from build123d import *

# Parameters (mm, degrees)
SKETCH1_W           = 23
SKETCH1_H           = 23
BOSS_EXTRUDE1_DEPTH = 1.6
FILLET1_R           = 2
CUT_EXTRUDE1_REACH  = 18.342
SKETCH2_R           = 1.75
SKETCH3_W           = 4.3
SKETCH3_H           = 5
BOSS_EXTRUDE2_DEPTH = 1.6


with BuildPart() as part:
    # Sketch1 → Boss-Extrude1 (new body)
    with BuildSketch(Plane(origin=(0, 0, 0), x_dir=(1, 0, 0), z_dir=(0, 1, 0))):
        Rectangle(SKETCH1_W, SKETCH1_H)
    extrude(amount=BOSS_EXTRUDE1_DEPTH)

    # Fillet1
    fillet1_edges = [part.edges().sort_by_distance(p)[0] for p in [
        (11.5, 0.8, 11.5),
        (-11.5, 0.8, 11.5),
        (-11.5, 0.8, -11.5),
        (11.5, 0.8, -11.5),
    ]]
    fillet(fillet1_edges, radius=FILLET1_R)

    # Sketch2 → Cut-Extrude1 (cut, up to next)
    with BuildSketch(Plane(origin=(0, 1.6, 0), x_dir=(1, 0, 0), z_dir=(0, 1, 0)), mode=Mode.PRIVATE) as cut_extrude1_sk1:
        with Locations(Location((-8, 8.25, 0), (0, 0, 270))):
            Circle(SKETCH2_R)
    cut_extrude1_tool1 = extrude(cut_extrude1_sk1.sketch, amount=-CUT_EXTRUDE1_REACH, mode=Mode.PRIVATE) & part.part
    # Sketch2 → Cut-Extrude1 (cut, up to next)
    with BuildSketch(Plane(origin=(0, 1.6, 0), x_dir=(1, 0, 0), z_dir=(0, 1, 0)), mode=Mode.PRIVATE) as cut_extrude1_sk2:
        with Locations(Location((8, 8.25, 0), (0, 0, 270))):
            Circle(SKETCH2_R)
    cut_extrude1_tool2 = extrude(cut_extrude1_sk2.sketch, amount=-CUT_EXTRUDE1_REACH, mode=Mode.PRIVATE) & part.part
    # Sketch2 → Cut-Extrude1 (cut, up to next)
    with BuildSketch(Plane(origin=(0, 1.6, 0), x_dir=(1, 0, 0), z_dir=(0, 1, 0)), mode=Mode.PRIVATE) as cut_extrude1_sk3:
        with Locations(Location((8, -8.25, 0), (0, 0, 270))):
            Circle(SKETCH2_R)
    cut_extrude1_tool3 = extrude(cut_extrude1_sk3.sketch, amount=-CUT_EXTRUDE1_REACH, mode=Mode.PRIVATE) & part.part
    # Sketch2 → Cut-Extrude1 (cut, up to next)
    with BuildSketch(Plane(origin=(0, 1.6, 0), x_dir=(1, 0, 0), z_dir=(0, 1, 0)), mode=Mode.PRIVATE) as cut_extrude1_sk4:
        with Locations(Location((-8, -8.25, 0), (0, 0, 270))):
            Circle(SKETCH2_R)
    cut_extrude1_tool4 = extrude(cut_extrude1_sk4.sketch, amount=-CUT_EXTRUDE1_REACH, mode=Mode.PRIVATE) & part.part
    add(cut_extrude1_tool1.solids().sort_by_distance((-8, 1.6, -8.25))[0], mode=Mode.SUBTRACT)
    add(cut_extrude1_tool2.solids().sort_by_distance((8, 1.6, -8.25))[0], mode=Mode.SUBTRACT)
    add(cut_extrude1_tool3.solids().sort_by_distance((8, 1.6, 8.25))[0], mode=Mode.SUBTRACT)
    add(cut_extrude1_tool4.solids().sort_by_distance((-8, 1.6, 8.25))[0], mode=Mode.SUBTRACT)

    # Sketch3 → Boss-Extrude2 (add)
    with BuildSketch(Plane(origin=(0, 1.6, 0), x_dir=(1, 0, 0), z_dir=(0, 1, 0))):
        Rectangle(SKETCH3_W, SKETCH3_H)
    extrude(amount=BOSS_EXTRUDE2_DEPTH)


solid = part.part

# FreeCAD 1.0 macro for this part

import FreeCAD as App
import Part
import Sketcher
from FreeCAD import Vector


def edges_at(feature, points):
    """Names of the edges that pass closest to the given points."""
    edges = feature.Shape.Edges
    near = lambda p: min(range(len(edges)), key=lambda i: edges[i].distToShape(Part.Vertex(*p))[0])
    return sorted({f"Edge{near(p) + 1}" for p in points})


def add_polygon(sketch, points):
    """Adds a closed chain of lines whose ends are joined by coincident constraints."""
    first, n = sketch.GeometryCount, len(points)
    for a, b in zip(points, points[1:] + points[:1]):
        sketch.addGeometry(Part.LineSegment(App.Vector(*a, 0), App.Vector(*b, 0)), False)
    for i in range(n):
        sketch.addConstraint(Sketcher.Constraint("Coincident", first + i, 2, first + (i + 1) % n, 1))

doc = App.newDocument("Part")
body = doc.addObject("PartDesign::Body", "Body")

# Sketch on XZ plane
sketch1 = body.newObject("Sketcher::SketchObject", "Sketch")
sketch1.AttachmentSupport = (doc.getObject("XZ_Plane"), [""])
sketch1.MapMode = "FlatFace"
add_polygon(sketch1, [(-12, -12), (-12, 12), (12, 12), (12, -12)])  # lines 0-3
sketch1.addConstraint(Sketcher.Constraint("Vertical", 0))
sketch1.addConstraint(Sketcher.Constraint("Horizontal", 1))
sketch1.addConstraint(Sketcher.Constraint("Vertical", 2))
sketch1.addConstraint(Sketcher.Constraint("Horizontal", 3))
sketch1.addConstraint(Sketcher.Constraint("Symmetric", 0, 2, 2, 2, -1, 1))
sketch1.addConstraint(Sketcher.Constraint("Equal", 3, 0))
sketch1.addConstraint(Sketcher.Constraint("DistanceX", 1, 1, 1, 2, 23.0))
pad1 = body.newObject("PartDesign::Pad", "Pad")
pad1.Profile = sketch1
pad1.Length = 1.6
pad1.Reversed = True
doc.recompute()

fillet = body.newObject("PartDesign::Fillet", "Fillet")
fillet.Base = (pad1, edges_at(pad1, [
    (11.5, 0.8, 11.5),
    (-11.5, 0.8, 11.5),
    (-11.5, 0.8, -11.5),
    (11.5, 0.8, -11.5),
]))
fillet.Radius = 2

# Sketch on XZ plane
sketch2 = body.newObject("Sketcher::SketchObject", "Sketch001")
sketch2.AttachmentSupport = (doc.getObject("XZ_Plane"), [""])
sketch2.MapMode = "FlatFace"
sketch2.AttachmentOffset = App.Placement(Vector(0, 0, -1.6), App.Rotation())
sketch2.addGeometry(Part.Circle(Vector(-8, -8.2, 0), Vector(0, 0, 1), 1.8), False)
sketch2.addConstraint(Sketcher.Constraint("Diameter", 0, 3.5))
sketch2.addConstraint(Sketcher.Constraint("DistanceX", 0, 3, -1, 1, 8.0))
sketch2.addConstraint(Sketcher.Constraint("DistanceY", 0, 3, -1, 1, 8.25))
pocket1 = body.newObject("PartDesign::Pocket", "Pocket")
pocket1.Profile = sketch2
pocket1.Type = "UpToFirst"
pocket1.Reversed = True

# Sketch on XZ plane
sketch3 = body.newObject("Sketcher::SketchObject", "Sketch002")
sketch3.AttachmentSupport = (doc.getObject("XZ_Plane"), [""])
sketch3.MapMode = "FlatFace"
sketch3.AttachmentOffset = App.Placement(Vector(0, 0, -1.6), App.Rotation())
sketch3.addGeometry(Part.Circle(Vector(8, -8.2, 0), Vector(0, 0, 1), 1.8), False)
sketch3.addConstraint(Sketcher.Constraint("Diameter", 0, 3.5))
sketch3.addConstraint(Sketcher.Constraint("DistanceX", -1, 1, 0, 3, 8.0))
sketch3.addConstraint(Sketcher.Constraint("DistanceY", 0, 3, -1, 1, 8.25))
pocket2 = body.newObject("PartDesign::Pocket", "Pocket001")
pocket2.Profile = sketch3
pocket2.Type = "UpToFirst"
pocket2.Reversed = True

# Sketch on XZ plane
sketch4 = body.newObject("Sketcher::SketchObject", "Sketch003")
sketch4.AttachmentSupport = (doc.getObject("XZ_Plane"), [""])
sketch4.MapMode = "FlatFace"
sketch4.AttachmentOffset = App.Placement(Vector(0, 0, -1.6), App.Rotation())
sketch4.addGeometry(Part.Circle(Vector(8, 8.2, 0), Vector(0, 0, 1), 1.8), False)
sketch4.addConstraint(Sketcher.Constraint("Diameter", 0, 3.5))
sketch4.addConstraint(Sketcher.Constraint("DistanceX", -1, 1, 0, 3, 8.0))
sketch4.addConstraint(Sketcher.Constraint("DistanceY", -1, 1, 0, 3, 8.25))
pocket3 = body.newObject("PartDesign::Pocket", "Pocket002")
pocket3.Profile = sketch4
pocket3.Type = "UpToFirst"
pocket3.Reversed = True

# Sketch on XZ plane
sketch5 = body.newObject("Sketcher::SketchObject", "Sketch004")
sketch5.AttachmentSupport = (doc.getObject("XZ_Plane"), [""])
sketch5.MapMode = "FlatFace"
sketch5.AttachmentOffset = App.Placement(Vector(0, 0, -1.6), App.Rotation())
sketch5.addGeometry(Part.Circle(Vector(-8, 8.2, 0), Vector(0, 0, 1), 1.8), False)
sketch5.addConstraint(Sketcher.Constraint("Diameter", 0, 3.5))
sketch5.addConstraint(Sketcher.Constraint("DistanceX", 0, 3, -1, 1, 8.0))
sketch5.addConstraint(Sketcher.Constraint("DistanceY", -1, 1, 0, 3, 8.25))
pocket4 = body.newObject("PartDesign::Pocket", "Pocket003")
pocket4.Profile = sketch5
pocket4.Type = "UpToFirst"
pocket4.Reversed = True

# Sketch on XZ plane
sketch6 = body.newObject("Sketcher::SketchObject", "Sketch005")
sketch6.AttachmentSupport = (doc.getObject("XZ_Plane"), [""])
sketch6.MapMode = "FlatFace"
sketch6.AttachmentOffset = App.Placement(Vector(0, 0, -1.6), App.Rotation())
add_polygon(sketch6, [(-2.1, -2.5), (-2.1, 2.5), (2.1, 2.5), (2.1, -2.5)])  # lines 0-3
sketch6.addConstraint(Sketcher.Constraint("Vertical", 0))
sketch6.addConstraint(Sketcher.Constraint("Horizontal", 1))
sketch6.addConstraint(Sketcher.Constraint("Vertical", 2))
sketch6.addConstraint(Sketcher.Constraint("Horizontal", 3))
sketch6.addConstraint(Sketcher.Constraint("Symmetric", 0, 2, 2, 2, -1, 1))
sketch6.addConstraint(Sketcher.Constraint("DistanceY", 0, 1, 0, 2, 5.0))
sketch6.addConstraint(Sketcher.Constraint("DistanceX", 1, 1, 1, 2, 4.3))
pad2 = body.newObject("PartDesign::Pad", "Pad001")
pad2.Profile = sketch6
pad2.Length = 1.6
pad2.Reversed = True

doc.recompute()
